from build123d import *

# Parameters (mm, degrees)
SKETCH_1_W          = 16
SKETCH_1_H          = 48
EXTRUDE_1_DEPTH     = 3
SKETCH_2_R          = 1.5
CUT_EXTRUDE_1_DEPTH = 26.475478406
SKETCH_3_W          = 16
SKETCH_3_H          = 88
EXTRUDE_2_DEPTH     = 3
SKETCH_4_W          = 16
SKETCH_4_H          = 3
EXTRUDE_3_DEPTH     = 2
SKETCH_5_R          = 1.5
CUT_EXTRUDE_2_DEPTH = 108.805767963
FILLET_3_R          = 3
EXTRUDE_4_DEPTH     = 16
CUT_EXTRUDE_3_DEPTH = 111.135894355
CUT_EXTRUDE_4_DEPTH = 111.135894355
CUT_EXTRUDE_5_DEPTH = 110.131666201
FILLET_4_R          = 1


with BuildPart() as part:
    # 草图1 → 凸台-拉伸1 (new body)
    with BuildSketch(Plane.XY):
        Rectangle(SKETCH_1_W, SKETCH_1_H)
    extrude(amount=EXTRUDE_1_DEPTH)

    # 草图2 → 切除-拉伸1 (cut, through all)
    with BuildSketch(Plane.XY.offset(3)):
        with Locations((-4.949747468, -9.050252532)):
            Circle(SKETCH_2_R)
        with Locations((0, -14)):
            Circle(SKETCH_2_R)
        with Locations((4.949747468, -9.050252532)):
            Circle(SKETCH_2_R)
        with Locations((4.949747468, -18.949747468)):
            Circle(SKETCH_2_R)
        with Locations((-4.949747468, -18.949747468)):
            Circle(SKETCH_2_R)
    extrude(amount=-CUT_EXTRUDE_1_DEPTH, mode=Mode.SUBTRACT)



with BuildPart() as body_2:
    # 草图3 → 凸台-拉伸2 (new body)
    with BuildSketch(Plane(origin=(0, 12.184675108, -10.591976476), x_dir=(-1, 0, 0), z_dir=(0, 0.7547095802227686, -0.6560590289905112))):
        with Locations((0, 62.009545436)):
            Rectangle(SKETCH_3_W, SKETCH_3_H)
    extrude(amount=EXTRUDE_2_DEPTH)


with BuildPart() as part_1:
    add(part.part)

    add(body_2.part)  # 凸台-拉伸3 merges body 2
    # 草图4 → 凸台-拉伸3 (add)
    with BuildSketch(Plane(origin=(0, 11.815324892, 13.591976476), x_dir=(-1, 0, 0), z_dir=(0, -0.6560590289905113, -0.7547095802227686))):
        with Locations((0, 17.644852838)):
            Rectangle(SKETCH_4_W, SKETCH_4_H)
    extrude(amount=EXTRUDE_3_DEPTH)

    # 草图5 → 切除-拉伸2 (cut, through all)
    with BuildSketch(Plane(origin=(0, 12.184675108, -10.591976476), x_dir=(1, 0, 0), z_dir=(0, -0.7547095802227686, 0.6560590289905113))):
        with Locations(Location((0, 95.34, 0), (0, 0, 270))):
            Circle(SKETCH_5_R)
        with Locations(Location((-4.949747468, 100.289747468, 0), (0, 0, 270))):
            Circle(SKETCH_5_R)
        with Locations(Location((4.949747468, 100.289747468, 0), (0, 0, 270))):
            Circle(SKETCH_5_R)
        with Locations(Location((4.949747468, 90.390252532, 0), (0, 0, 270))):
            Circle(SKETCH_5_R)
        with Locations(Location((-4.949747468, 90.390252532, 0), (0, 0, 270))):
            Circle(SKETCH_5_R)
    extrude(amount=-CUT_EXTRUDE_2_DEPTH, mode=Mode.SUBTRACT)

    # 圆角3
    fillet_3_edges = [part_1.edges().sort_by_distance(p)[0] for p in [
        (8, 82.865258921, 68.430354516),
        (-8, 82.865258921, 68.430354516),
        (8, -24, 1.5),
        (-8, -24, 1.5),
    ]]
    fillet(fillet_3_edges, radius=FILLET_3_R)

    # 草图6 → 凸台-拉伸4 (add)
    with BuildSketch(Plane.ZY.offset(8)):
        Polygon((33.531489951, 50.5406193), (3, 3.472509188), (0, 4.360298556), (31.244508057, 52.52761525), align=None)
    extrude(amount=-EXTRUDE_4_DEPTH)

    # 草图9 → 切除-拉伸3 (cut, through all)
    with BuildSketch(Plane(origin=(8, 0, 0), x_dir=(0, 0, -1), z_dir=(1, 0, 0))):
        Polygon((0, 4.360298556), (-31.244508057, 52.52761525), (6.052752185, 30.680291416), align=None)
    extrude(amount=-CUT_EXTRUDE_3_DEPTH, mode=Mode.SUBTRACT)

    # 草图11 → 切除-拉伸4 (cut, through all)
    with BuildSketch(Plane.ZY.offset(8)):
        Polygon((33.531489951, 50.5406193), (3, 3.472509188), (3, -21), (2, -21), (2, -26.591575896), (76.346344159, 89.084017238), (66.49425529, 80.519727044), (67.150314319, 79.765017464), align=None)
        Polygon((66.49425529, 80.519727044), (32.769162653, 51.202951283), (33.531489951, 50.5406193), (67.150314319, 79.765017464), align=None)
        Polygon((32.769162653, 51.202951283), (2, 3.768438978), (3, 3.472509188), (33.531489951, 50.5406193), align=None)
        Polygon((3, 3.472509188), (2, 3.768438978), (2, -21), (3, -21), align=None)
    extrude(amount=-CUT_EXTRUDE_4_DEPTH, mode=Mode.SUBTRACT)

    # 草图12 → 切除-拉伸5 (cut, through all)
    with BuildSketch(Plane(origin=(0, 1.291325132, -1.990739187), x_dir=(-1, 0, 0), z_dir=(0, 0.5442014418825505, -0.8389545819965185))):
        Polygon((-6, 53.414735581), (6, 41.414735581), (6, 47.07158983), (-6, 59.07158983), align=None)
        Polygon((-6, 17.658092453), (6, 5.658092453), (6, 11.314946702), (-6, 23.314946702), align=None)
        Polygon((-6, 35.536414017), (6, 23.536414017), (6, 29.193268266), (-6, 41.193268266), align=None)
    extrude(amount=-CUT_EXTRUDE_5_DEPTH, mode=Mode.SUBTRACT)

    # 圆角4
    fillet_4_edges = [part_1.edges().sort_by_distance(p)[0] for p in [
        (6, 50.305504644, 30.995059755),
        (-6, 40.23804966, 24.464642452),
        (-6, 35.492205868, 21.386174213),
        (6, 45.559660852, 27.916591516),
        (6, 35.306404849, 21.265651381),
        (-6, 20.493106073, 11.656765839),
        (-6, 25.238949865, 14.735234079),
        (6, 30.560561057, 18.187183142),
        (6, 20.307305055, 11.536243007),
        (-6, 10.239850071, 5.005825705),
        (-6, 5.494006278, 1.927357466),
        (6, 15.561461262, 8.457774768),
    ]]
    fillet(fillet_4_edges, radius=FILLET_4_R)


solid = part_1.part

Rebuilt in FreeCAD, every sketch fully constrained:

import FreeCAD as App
import Part
import Sketcher

V = App.Vector
Q = App.Units.Quantity


def edges_at(feature, points):
    """Names of the edges that pass closest to the given points."""
    edges = feature.Shape.Edges
    near = lambda p: min(range(len(edges)), key=lambda i: edges[i].distToShape(Part.Vertex(*p))[0])
    return sorted({f"Edge{near(p) + 1}" for p in points})

doc = App.newDocument("Part")
body = doc.addObject("PartDesign::Body", "Body")

# Sketch on XY plane
sketch1 = body.newObject("Sketcher::SketchObject", "Sketch")
sketch1.AttachmentSupport = (doc.getObject("XY_Plane"), [""])
sketch1.MapMode = "FlatFace"
sketch1.addGeometry([
    Part.LineSegment(V(-8, 24, 0), V(-8, -24, 0)),
    Part.LineSegment(V(-8, -24, 0), V(8, -24, 0)),
    Part.LineSegment(V(8, -24, 0), V(8, 24, 0)),
    Part.LineSegment(V(8, 24, 0), V(-8, 24, 0)),
], False)
sketch1.addConstraint([
    Sketcher.Constraint("Coincident", 0, 2, 1, 1),
    Sketcher.Constraint("Coincident", 1, 2, 2, 1),
    Sketcher.Constraint("Coincident", 2, 2, 3, 1),
    Sketcher.Constraint("Coincident", 3, 2, 0, 1),
    Sketcher.Constraint("Vertical", 0),
    Sketcher.Constraint("Horizontal", 1),
    Sketcher.Constraint("Vertical", 2),
    Sketcher.Constraint("Horizontal", 3),
    Sketcher.Constraint("Symmetric", 0, 2, 2, 2, -1, 1),
    Sketcher.Constraint("DistanceX", 1, 1, 1, 2, Q("16 mm")),
    Sketcher.Constraint("DistanceY", 0, 2, 0, 1, Q("48 mm")),
])
pad1 = body.newObject("PartDesign::Pad", "Pad")
pad1.Profile = sketch1
pad1.Length = 3

# Sketch on XY plane
sketch2 = body.newObject("Sketcher::SketchObject", "Sketch001")
sketch2.AttachmentSupport = (doc.getObject("XY_Plane"), [""])
sketch2.MapMode = "FlatFace"
sketch2.AttachmentOffset = App.Placement(V(0, 0, 3), App.Rotation())
sketch2.addGeometry([
    Part.Circle(V(-4.9, -9.1, 0), V(0, 0, 1), 1.5),  # 0
    Part.Circle(V(0, -14, 0), V(0, 0, 1), 1.5),  # 1
    Part.Circle(V(4.9, -9.1, 0), V(0, 0, 1), 1.5),  # 2
    Part.Circle(V(4.9, -18.9, 0), V(0, 0, 1), 1.5),  # 3
    Part.Circle(V(-4.9, -18.9, 0), V(0, 0, 1), 1.5),  # 4
], False)
sketch2.addConstraint([
    Sketcher.Constraint("Equal", 0, 1),
    Sketcher.Constraint("Equal", 1, 2),
    Sketcher.Constraint("Equal", 2, 3),
    Sketcher.Constraint("Equal", 3, 4),
    Sketcher.Constraint("Symmetric", 0, 3, 2, 3, -2),
    Sketcher.Constraint("Symmetric", 3, 3, 4, 3, -2),
    Sketcher.Constraint("PointOnObject", 1, 3, -2),
    Sketcher.Constraint("Vertical", 2, 3, 3, 3),
    Sketcher.Constraint("Diameter", 0, Q("3 mm")),
    Sketcher.Constraint("DistanceY", 1, 3, -1, 1, Q("14 mm")),
    Sketcher.Constraint("DistanceX", 0, 3, -1, 1, Q("4.949747 mm")),
    Sketcher.Constraint("DistanceY", 0, 3, -1, 1, Q("9.050253 mm")),
    Sketcher.Constraint("DistanceY", 3, 3, -1, 1, Q("18.949747 mm")),
])
pocket1 = body.newObject("PartDesign::Pocket", "Pocket")
pocket1.Profile = sketch2
pocket1.Type = "ThroughAll"
body2 = doc.addObject("PartDesign::Body", "Body001")

# Sketch on an angled plane
sketch3 = body2.newObject("Sketcher::SketchObject", "Sketch002")
sketch3.Placement = App.Placement(V(0, 12.184675, -10.591976), App.Rotation(V(-1, 0, 0), V(0, 0.656059029, 0.75470958), V(0, 0.75470958, -0.656059029), "ZXY"))
sketch3.addGeometry([
    Part.LineSegment(V(-8, 106, 0), V(-8, 18, 0)),
    Part.LineSegment(V(-8, 18, 0), V(8, 18, 0)),
    Part.LineSegment(V(8, 18, 0), V(8, 106, 0)),
    Part.LineSegment(V(8, 106, 0), V(-8, 106, 0)),
], False)
sketch3.addConstraint([
    Sketcher.Constraint("Coincident", 0, 2, 1, 1),
    Sketcher.Constraint("Coincident", 1, 2, 2, 1),
    Sketcher.Constraint("Coincident", 2, 2, 3, 1),
    Sketcher.Constraint("Coincident", 3, 2, 0, 1),
    Sketcher.Constraint("Vertical", 0),
    Sketcher.Constraint("Horizontal", 1),
    Sketcher.Constraint("Vertical", 2),
    Sketcher.Constraint("Horizontal", 3),
    Sketcher.Constraint("DistanceX", 1, 1, 1, 2, Q("16 mm")),
    Sketcher.Constraint("DistanceY", 0, 2, 0, 1, Q("88 mm")),
    Sketcher.Constraint("DistanceX", 0, 2, -1, 1, Q("8 mm")),
    Sketcher.Constraint("DistanceY", -1, 1, 0, 2, Q("18.009545 mm")),
])
pad2 = body2.newObject("PartDesign::Pad", "Pad001")
pad2.Profile = sketch3
pad2.Length = 3
body.AllowCompound = True
doc.recompute()

boolean = body.newObject("PartDesign::Boolean", "Boolean")
boolean.Type = "Fuse"
boolean.addObjects([body2])

# Sketch on an angled plane
sketch4 = body.newObject("Sketcher::SketchObject", "Sketch003")
sketch4.Placement = App.Placement(V(0, 11.815325, 13.591976), App.Rotation(V(-1, 0, 0), V(0, 0.75470958, -0.656059029), V(0, -0.656059029, -0.75470958), "ZXY"))
sketch4.addGeometry([
    Part.LineSegment(V(-8, 19.1, 0), V(-8, 16.1, 0)),
    Part.LineSegment(V(-8, 16.1, 0), V(8, 16.1, 0)),
    Part.LineSegment(V(8, 16.1, 0), V(8, 19.1, 0)),
    Part.LineSegment(V(8, 19.1, 0), V(-8, 19.1, 0)),
], False)
sketch4.addConstraint([
    Sketcher.Constraint("Coincident", 0, 2, 1, 1),
    Sketcher.Constraint("Coincident", 1, 2, 2, 1),
    Sketcher.Constraint("Coincident", 2, 2, 3, 1),
    Sketcher.Constraint("Coincident", 3, 2, 0, 1),
    Sketcher.Constraint("Vertical", 0),
    Sketcher.Constraint("Horizontal", 1),
    Sketcher.Constraint("Vertical", 2),
    Sketcher.Constraint("Horizontal", 3),
    Sketcher.Constraint("DistanceX", 1, 1, 1, 2, Q("16 mm")),
    Sketcher.Constraint("DistanceY", 0, 2, 0, 1, Q("3 mm")),
    Sketcher.Constraint("DistanceX", 0, 2, -1, 1, Q("8 mm")),
    Sketcher.Constraint("DistanceY", -1, 1, 0, 2, Q("16.144853 mm")),
])
pad3 = body.newObject("PartDesign::Pad", "Pad002")
pad3.Profile = sketch4
pad3.Length = 2

# Sketch on an angled plane
sketch5 = body.newObject("Sketcher::SketchObject", "Sketch004")
sketch5.Placement = App.Placement(V(0, 12.184675, -10.591976), App.Rotation(V(1, 0, 0), V(0, 0.656059029, 0.75470958), V(0, -0.75470958, 0.656059029), "ZXY"))
sketch5.addGeometry([
    Part.Circle(V(0, 95.3, 0), V(0, 0, 1), 1.5),  # 0
    Part.Circle(V(-4.9, 100.3, 0), V(0, 0, 1), 1.5),  # 1
    Part.Circle(V(4.9, 100.3, 0), V(0, 0, 1), 1.5),  # 2
    Part.Circle(V(4.9, 90.4, 0), V(0, 0, 1), 1.5),  # 3
    Part.Circle(V(-4.9, 90.4, 0), V(0, 0, 1), 1.5),  # 4
], False)
sketch5.addConstraint([
    Sketcher.Constraint("Equal", 0, 1),
    Sketcher.Constraint("Equal", 1, 2),
    Sketcher.Constraint("Equal", 2, 3),
    Sketcher.Constraint("Equal", 3, 4),
    Sketcher.Constraint("Symmetric", 1, 3, 2, 3, -2),
    Sketcher.Constraint("Symmetric", 3, 3, 4, 3, -2),
    Sketcher.Constraint("PointOnObject", 0, 3, -2),
    Sketcher.Constraint("Vertical", 2, 3, 3, 3),
    Sketcher.Constraint("Diameter", 0, Q("3 mm")),
    Sketcher.Constraint("DistanceY", -1, 1, 0, 3, Q("95.34 mm")),
    Sketcher.Constraint("DistanceX", 1, 3, -1, 1, Q("4.949747 mm")),
    Sketcher.Constraint("DistanceY", -1, 1, 1, 3, Q("100.289747 mm")),
    Sketcher.Constraint("DistanceY", -1, 1, 3, 3, Q("90.390253 mm")),
])
pocket2 = body.newObject("PartDesign::Pocket", "Pocket001")
pocket2.Profile = sketch5
pocket2.Type = "ThroughAll"
doc.recompute()

fillet = body.newObject("PartDesign::Fillet", "Fillet")
fillet.Base = (pocket2, edges_at(pocket2, [
    (8, 82.865, 68.43),
    (-8, 82.865, 68.43),
    (8, -24, 1.5),
    (-8, -24, 1.5),
]))
fillet.Radius = 3

# Sketch on YZ plane
sketch6 = body.newObject("Sketcher::SketchObject", "Sketch005")
sketch6.AttachmentSupport = (doc.getObject("YZ_Plane"), [""])
sketch6.MapMode = "FlatFace"
sketch6.AttachmentOffset = App.Placement(V(0, 0, -8), App.Rotation())
sketch6.addGeometry([
    Part.LineSegment(V(3.5, 3, 0), V(50.5, 33.5, 0)),
    Part.LineSegment(V(50.5, 33.5, 0), V(52.5, 31.2, 0)),
    Part.LineSegment(V(52.5, 31.2, 0), V(4.4, 0, 0)),
    Part.LineSegment(V(4.4, 0, 0), V(3.5, 3, 0)),
], False)
sketch6.addConstraint([
    Sketcher.Constraint("Coincident", 0, 2, 1, 1),
    Sketcher.Constraint("Coincident", 1, 2, 2, 1),
    Sketcher.Constraint("Coincident", 2, 2, 3, 1),
    Sketcher.Constraint("Coincident", 3, 2, 0, 1),
    Sketcher.Constraint("PointOnObject", 2, 2, -1),
    Sketcher.Constraint("Parallel", 0, 2),
    Sketcher.Constraint("DistanceY", -1, 1, 3, 2, Q("3 mm")),
    Sketcher.Constraint("DistanceX", -1, 1, 2, 2, Q("4.360299 mm")),
    Sketcher.Constraint("DistanceX", -1, 1, 0, 2, Q("50.540619 mm")),
    Sketcher.Constraint("DistanceY", -1, 1, 0, 2, Q("33.53149 mm")),
    Sketcher.Constraint("DistanceY", -1, 1, 1, 2, Q("31.244508 mm")),
    Sketcher.Constraint("DistanceX", -1, 1, 3, 2, Q("3.472509 mm")),
])
pad4 = body.newObject("PartDesign::Pad", "Pad003")
pad4.Profile = sketch6
pad4.Length = 16

# Sketch on YZ plane
sketch7 = body.newObject("Sketcher::SketchObject", "Sketch006")
sketch7.AttachmentSupport = (doc.getObject("YZ_Plane"), [""])
sketch7.MapMode = "FlatFace"
sketch7.AttachmentOffset = App.Placement(V(0, 0, 8), App.Rotation())
sketch7.addGeometry([
    Part.LineSegment(V(53, 31, 0), V(4, 0, 0)),
    Part.LineSegment(V(4, 0, 0), V(31, -6, 0)),
    Part.LineSegment(V(31, -6, 0), V(53, 31, 0)),
], False)
sketch7.addConstraint([
    Sketcher.Constraint("Coincident", 0, 2, 1, 1),
    Sketcher.Constraint("Coincident", 1, 2, 2, 1),
    Sketcher.Constraint("Coincident", 2, 2, 0, 1),
    Sketcher.Constraint("PointOnObject", 0, 2, -1),
    Sketcher.Constraint("DistanceX", -1, 1, 0, 2, Q("4.360299 mm")),
    Sketcher.Constraint("Distance", 2, Q("43.224891 mm")),
    Sketcher.Constraint("DistanceX", -1, 1, 1, 2, Q("30.680291 mm")),
    Sketcher.Constraint("DistanceY", -1, 1, 2, 2, Q("31.244508 mm")),
    Sketcher.Constraint("DistanceY", 1, 2, 2, 2, Q("37.29726 mm")),
])
pocket3 = body.newObject("PartDesign::Pocket", "Pocket002")
pocket3.Profile = sketch7
pocket3.Type = "ThroughAll"

# Sketch on YZ plane
sketch8 = body.newObject("Sketcher::SketchObject", "Sketch007")
sketch8.AttachmentSupport = (doc.getObject("YZ_Plane"), [""])
sketch8.MapMode = "FlatFace"
sketch8.AttachmentOffset = App.Placement(V(0, 0, -8), App.Rotation())
sketch8.addGeometry([
    Part.LineSegment(V(-27, 2, 0), V(89, 76, 0)),  # 0
    Part.LineSegment(V(89, 76, 0), V(81, 66, 0)),  # 1
    Part.LineSegment(V(81, 66, 0), V(51, 33, 0)),  # 2
    Part.LineSegment(V(51, 33, 0), V(4, 2, 0)),  # 3
    Part.LineSegment(V(4, 2, 0), V(-27, 2, 0)),  # 4
], False)
sketch8.addConstraint([
    Sketcher.Constraint("Coincident", 0, 2, 1, 1),
    Sketcher.Constraint("Coincident", 1, 2, 2, 1),
    Sketcher.Constraint("Coincident", 2, 2, 3, 1),
    Sketcher.Constraint("Coincident", 3, 2, 4, 1),
    Sketcher.Constraint("Coincident", 4, 2, 0, 1),
    Sketcher.Constraint("Horizontal", 4),
    Sketcher.Constraint("Parallel", 1, 2),
    Sketcher.Constraint("Angle", 1, Q("-131 deg")),
    Sketcher.Constraint("DistanceY", -1, 1, 3, 2, Q("2 mm")),
    Sketcher.Constraint("Distance", 0, Q("137.50717 mm")),
    Sketcher.Constraint("DistanceX", 4, 2, 4, 1, Q("30.360015 mm")),
    Sketcher.Constraint("DistanceX", -1, 1, 2, 2, Q("51.202951 mm")),
    Sketcher.Constraint("DistanceX", -1, 1, 3, 2, Q("3.768439 mm")),
    Sketcher.Constraint("DistanceX", 1, 2, 0, 2, Q("8.56429 mm")),
    Sketcher.Constraint("DistanceY", 2, 2, 0, 2, Q("43.577182 mm")),
])
pocket4 = body.newObject("PartDesign::Pocket", "Pocket003")
pocket4.Profile = sketch8
pocket4.Type = "ThroughAll"
pocket4.Reversed = True

# Sketch on an angled plane
sketch9 = body.newObject("Sketcher::SketchObject", "Sketch008")
sketch9.Placement = App.Placement(V(0, 1.291325, -1.990739), App.Rotation(V(-1, 0, 0), V(0, 0.838954582, 0.544201442), V(0, 0.544201442, -0.838954582), "ZXY"))
sketch9.addGeometry([
    Part.LineSegment(V(-6, 53, 0), V(6, 41, 0)),  # 0
    Part.LineSegment(V(6, 41, 0), V(6, 47, 0)),  # 1
    Part.LineSegment(V(6, 47, 0), V(-6, 59, 0)),  # 2
    Part.LineSegment(V(-6, 59, 0), V(-6, 53, 0)),  # 3
    Part.LineSegment(V(-6, 18, 0), V(6, 6, 0)),  # 4
    Part.LineSegment(V(6, 6, 0), V(6, 11, 0)),  # 5
    Part.LineSegment(V(6, 11, 0), V(-6, 23, 0)),  # 6
    Part.LineSegment(V(-6, 23, 0), V(-6, 18, 0)),  # 7
    Part.LineSegment(V(-6, 36, 0), V(6, 24, 0)),  # 8
    Part.LineSegment(V(6, 24, 0), V(6, 29, 0)),  # 9
    Part.LineSegment(V(6, 29, 0), V(-6, 41, 0)),  # 10
    Part.LineSegment(V(-6, 41, 0), V(-6, 36, 0)),  # 11
], False)
sketch9.addConstraint([
    Sketcher.Constraint("Coincident", 0, 2, 1, 1),
    Sketcher.Constraint("Coincident", 1, 2, 2, 1),
    Sketcher.Constraint("Coincident", 2, 2, 3, 1),
    Sketcher.Constraint("Coincident", 3, 2, 0, 1),
    Sketcher.Constraint("Coincident", 4, 2, 5, 1),
    Sketcher.Constraint("Coincident", 5, 2, 6, 1),
    Sketcher.Constraint("Coincident", 6, 2, 7, 1),
    Sketcher.Constraint("Coincident", 7, 2, 4, 1),
    Sketcher.Constraint("Coincident", 8, 2, 9, 1),
    Sketcher.Constraint("Coincident", 9, 2, 10, 1),
    Sketcher.Constraint("Coincident", 10, 2, 11, 1),
    Sketcher.Constraint("Coincident", 11, 2, 8, 1),
    Sketcher.Constraint("Vertical", 1),
    Sketcher.Constraint("Vertical", 3),
    Sketcher.Constraint("Vertical", 5),
    Sketcher.Constraint("Vertical", 7),
    Sketcher.Constraint("Vertical", 9),
    Sketcher.Constraint("Vertical", 11),
    Sketcher.Constraint("Parallel", 0, 2),
    Sketcher.Constraint("Parallel", 2, 4),
    Sketcher.Constraint("Parallel", 4, 6),
    Sketcher.Constraint("Parallel", 6, 8),
    Sketcher.Constraint("Parallel", 8, 10),
    Sketcher.Constraint("Vertical", 1, 2, 4, 2),
    Sketcher.Constraint("Vertical", 3, 2, 6, 2),
    Sketcher.Constraint("Vertical", 5, 2, 8, 2),
    Sketcher.Constraint("Vertical", 7, 2, 10, 2),
    Sketcher.Constraint("Equal", 3, 5),
    Sketcher.Constraint("Equal", 7, 9),
    Sketcher.Constraint("Angle", 0, Q("-45 deg")),
    Sketcher.Constraint("DistanceX", -1, 1, 0, 2, Q("6 mm")),
    Sketcher.Constraint("DistanceX", 2, 2, -1, 1, Q("6 mm")),
    Sketcher.Constraint("DistanceY", 1, 1, 1, 2, Q("5.656854 mm")),
    Sketcher.Constraint("DistanceY", -1, 1, 1, 2, Q("47.07159 mm")),
    Sketcher.Constraint("DistanceY", -1, 1, 9, 2, Q("29.193268 mm")),
    Sketcher.Constraint("DistanceY", 5, 2, 0, 2, Q("30.099789 mm")),
])
pocket5 = body.newObject("PartDesign::Pocket", "Pocket004")
pocket5.Profile = sketch9
pocket5.Type = "ThroughAll"
doc.recompute()

fillet2 = body.newObject("PartDesign::Fillet", "Fillet001")
fillet2.Base = (pocket5, edges_at(pocket5, [
    (6, 50.306, 30.995),
    (-6, 40.238, 24.465),
    (-6, 35.492, 21.386),
    (6, 45.56, 27.917),
    (6, 35.306, 21.266),
    (-6, 20.493, 11.657),
    (-6, 25.239, 14.735),
    (6, 30.561, 18.187),
    (6, 20.307, 11.536),
    (-6, 10.24, 5.006),
    (-6, 5.494, 1.927),
    (6, 15.561, 8.458),
]))
fillet2.Radius = 1

doc.recompute()
